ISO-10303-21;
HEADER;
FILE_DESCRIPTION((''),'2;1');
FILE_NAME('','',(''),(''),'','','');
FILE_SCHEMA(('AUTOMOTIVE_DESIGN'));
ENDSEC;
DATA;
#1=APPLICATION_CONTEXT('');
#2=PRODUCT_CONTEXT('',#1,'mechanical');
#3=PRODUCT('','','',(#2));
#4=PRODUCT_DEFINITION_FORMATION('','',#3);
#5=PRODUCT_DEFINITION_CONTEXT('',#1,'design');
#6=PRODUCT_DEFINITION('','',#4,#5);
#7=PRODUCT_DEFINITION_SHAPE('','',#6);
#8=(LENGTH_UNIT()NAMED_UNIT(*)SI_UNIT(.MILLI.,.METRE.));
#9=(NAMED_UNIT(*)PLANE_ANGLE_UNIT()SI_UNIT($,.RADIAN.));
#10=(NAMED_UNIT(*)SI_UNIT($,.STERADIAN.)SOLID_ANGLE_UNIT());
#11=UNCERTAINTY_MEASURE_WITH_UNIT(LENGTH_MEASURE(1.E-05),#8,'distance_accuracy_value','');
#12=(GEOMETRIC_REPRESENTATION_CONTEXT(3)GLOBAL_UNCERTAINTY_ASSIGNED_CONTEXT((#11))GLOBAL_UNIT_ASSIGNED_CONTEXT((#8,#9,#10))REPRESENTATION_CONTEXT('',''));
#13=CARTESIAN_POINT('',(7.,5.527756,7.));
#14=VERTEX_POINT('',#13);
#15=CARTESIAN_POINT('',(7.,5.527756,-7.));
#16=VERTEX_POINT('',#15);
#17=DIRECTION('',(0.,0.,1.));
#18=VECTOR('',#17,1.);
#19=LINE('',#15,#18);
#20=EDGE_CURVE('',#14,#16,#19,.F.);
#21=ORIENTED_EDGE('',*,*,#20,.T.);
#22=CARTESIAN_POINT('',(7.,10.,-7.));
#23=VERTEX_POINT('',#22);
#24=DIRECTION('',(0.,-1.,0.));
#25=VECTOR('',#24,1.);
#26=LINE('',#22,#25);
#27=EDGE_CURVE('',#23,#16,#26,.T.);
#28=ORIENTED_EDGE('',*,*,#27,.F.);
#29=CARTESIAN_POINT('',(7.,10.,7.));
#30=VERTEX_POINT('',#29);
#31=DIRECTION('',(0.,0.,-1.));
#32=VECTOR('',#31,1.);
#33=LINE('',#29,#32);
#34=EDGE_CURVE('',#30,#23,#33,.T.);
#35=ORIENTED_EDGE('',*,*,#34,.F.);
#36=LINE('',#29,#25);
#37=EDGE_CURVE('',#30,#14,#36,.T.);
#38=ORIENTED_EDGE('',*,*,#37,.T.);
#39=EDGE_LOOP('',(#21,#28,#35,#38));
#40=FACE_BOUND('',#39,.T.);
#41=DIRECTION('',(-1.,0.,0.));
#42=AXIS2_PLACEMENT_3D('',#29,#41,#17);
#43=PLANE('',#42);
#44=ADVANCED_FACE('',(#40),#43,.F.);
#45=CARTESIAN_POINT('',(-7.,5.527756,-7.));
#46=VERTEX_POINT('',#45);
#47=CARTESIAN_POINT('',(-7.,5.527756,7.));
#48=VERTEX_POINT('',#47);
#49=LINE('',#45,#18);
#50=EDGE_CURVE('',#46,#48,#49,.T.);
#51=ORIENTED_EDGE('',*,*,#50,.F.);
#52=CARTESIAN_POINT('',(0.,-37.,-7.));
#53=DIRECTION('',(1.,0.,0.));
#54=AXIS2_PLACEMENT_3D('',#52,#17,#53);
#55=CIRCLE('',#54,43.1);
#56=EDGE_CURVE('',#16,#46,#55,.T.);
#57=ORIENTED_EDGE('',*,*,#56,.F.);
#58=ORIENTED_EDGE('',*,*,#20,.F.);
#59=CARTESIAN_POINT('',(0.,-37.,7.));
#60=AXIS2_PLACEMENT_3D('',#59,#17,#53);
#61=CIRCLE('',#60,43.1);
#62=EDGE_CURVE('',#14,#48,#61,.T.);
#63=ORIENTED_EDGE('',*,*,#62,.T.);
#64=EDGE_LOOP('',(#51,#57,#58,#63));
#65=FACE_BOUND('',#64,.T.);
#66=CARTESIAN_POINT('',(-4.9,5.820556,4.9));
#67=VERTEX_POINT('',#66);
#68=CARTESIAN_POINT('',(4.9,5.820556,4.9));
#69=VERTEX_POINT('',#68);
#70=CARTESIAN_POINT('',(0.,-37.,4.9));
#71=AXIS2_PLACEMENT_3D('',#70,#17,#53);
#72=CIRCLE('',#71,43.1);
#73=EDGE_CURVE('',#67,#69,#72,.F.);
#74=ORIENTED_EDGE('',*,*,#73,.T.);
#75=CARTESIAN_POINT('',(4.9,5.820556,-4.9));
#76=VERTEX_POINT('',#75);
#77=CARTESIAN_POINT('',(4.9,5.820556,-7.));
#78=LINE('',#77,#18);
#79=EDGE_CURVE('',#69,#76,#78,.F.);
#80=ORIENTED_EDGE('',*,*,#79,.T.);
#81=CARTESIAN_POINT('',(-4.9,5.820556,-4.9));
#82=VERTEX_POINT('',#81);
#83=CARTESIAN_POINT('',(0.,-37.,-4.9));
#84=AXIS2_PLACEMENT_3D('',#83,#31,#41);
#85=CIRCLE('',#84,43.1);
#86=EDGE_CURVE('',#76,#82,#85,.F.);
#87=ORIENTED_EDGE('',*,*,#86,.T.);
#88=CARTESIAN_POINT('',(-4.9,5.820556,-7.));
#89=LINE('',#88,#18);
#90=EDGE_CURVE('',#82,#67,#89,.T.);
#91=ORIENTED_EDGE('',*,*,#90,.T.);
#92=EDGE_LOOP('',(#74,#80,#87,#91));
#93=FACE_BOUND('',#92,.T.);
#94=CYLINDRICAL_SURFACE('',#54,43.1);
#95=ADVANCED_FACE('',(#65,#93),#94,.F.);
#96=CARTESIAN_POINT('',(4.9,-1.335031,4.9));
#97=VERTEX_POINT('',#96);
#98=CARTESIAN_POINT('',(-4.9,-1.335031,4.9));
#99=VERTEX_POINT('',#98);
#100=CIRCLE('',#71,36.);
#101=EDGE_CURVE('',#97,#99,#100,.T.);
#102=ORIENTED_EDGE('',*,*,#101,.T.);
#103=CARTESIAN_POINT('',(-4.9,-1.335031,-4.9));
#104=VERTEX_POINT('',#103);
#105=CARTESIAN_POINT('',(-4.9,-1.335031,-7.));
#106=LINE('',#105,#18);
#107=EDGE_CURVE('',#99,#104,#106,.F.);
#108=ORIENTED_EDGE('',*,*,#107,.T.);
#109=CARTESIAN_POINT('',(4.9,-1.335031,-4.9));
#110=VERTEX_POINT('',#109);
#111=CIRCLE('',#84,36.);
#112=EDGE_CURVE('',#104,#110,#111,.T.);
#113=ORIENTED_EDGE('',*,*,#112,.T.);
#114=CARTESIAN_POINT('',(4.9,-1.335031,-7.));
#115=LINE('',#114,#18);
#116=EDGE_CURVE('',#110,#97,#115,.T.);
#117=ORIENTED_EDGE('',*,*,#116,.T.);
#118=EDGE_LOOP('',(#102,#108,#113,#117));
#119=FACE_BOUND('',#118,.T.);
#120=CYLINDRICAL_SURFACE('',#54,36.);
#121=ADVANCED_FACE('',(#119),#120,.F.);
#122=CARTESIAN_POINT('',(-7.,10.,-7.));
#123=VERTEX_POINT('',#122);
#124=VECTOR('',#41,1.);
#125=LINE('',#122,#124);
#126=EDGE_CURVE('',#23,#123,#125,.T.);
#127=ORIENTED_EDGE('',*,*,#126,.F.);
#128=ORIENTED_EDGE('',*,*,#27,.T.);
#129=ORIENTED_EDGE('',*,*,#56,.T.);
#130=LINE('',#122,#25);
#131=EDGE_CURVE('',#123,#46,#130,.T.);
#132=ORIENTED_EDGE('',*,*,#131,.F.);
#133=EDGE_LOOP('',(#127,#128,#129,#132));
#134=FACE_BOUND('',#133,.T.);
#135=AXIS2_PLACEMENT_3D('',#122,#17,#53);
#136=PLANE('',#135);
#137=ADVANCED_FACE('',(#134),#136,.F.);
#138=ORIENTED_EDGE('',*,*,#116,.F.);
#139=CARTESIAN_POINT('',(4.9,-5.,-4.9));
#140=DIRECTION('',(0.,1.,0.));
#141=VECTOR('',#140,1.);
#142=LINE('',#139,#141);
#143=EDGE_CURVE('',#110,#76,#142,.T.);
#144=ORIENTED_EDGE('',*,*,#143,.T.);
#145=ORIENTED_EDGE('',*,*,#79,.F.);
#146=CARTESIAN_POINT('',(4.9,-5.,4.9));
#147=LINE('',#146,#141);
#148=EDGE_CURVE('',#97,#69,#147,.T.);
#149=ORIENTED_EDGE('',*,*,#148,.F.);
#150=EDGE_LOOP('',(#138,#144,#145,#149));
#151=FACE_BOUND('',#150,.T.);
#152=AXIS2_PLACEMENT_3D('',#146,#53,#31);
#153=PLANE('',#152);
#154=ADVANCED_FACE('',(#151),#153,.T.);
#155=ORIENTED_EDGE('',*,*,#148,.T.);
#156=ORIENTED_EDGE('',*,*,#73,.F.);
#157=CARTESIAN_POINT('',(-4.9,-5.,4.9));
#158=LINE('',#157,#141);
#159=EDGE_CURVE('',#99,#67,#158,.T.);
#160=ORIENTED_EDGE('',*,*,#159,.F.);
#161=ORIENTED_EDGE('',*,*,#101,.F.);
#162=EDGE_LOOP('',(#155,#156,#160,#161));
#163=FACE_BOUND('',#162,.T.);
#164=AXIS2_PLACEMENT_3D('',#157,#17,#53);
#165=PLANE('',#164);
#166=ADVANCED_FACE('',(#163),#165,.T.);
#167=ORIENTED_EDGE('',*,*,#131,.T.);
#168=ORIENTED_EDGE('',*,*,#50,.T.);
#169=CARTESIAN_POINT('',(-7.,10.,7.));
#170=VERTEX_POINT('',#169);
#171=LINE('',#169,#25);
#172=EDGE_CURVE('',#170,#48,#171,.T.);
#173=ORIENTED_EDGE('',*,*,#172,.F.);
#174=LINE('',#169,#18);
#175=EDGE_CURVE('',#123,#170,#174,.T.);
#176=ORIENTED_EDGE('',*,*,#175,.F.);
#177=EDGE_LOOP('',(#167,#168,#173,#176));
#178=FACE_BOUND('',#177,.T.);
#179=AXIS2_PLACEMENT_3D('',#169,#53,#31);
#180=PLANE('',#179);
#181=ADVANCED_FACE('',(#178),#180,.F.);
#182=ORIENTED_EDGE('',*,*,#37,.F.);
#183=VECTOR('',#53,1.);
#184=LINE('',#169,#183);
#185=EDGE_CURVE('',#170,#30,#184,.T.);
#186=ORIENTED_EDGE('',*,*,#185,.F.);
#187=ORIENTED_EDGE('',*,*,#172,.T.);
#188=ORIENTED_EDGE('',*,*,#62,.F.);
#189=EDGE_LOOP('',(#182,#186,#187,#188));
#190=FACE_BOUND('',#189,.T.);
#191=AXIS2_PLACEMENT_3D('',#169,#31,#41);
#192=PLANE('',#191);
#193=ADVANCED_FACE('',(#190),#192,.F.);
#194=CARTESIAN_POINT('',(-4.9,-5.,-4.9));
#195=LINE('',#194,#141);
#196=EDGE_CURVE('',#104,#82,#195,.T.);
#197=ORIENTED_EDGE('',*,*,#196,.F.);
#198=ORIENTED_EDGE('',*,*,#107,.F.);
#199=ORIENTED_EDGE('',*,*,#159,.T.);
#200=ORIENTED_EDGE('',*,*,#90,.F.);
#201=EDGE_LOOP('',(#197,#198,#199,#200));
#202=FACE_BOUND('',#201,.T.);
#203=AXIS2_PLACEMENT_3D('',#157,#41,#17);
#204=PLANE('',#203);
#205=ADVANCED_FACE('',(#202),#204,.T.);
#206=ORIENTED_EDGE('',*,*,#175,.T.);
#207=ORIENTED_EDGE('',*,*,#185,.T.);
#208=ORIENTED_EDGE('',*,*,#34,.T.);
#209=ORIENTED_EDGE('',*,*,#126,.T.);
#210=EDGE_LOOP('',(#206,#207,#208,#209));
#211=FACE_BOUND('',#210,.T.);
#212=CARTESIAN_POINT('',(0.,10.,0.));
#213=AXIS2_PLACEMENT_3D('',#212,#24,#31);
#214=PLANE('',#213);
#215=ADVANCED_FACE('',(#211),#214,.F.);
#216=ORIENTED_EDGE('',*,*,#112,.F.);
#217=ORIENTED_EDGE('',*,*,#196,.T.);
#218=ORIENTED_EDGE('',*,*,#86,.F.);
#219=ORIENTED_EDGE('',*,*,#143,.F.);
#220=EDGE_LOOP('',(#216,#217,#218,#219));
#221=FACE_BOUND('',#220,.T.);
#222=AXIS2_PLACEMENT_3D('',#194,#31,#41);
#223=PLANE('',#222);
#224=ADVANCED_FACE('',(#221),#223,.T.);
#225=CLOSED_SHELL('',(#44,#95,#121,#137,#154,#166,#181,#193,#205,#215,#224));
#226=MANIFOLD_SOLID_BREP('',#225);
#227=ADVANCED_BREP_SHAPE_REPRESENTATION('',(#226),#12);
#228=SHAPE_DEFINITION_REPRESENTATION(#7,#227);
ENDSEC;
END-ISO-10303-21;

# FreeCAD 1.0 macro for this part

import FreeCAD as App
import Part
import Sketcher
from FreeCAD import Vector
Q = App.Units.Quantity

doc = App.newDocument("Part")
body = doc.addObject("PartDesign::Body", "Body")

# Sketch on XZ plane
sketch1 = body.newObject("Sketcher::SketchObject", "Sketch")
sketch1.AttachmentSupport = (doc.getObject("XZ_Plane"), [""])
sketch1.MapMode = "FlatFace"
sketch1.addGeometry(Part.LineSegment(Vector(-7, -7, 0), Vector(-7, 7, 0)), False)
sketch1.addGeometry(Part.LineSegment(Vector(-7, 7, 0), Vector(7, 7, 0)), False)
sketch1.addGeometry(Part.LineSegment(Vector(7, 7, 0), Vector(7, -7, 0)), False)
sketch1.addGeometry(Part.LineSegment(Vector(7, -7, 0), Vector(-7, -7, 0)), False)
sketch1.addConstraint(Sketcher.Constraint("Coincident", 0, 2, 1, 1))
sketch1.addConstraint(Sketcher.Constraint("Coincident", 1, 2, 2, 1))
sketch1.addConstraint(Sketcher.Constraint("Coincident", 2, 2, 3, 1))
sketch1.addConstraint(Sketcher.Constraint("Coincident", 3, 2, 0, 1))
sketch1.addConstraint(Sketcher.Constraint("Vertical", 0))
sketch1.addConstraint(Sketcher.Constraint("Horizontal", 1))
sketch1.addConstraint(Sketcher.Constraint("Vertical", 2))
sketch1.addConstraint(Sketcher.Constraint("Horizontal", 3))
sketch1.addConstraint(Sketcher.Constraint("Symmetric", 0, 2, 2, 2, -1, 1))
sketch1.addConstraint(Sketcher.Constraint("Equal", 3, 0))
sketch1.addConstraint(Sketcher.Constraint("DistanceX", 1, 1, 1, 2, Q("14 mm")))
pad1 = body.newObject("PartDesign::Pad", "Pad")
pad1.Profile = sketch1
pad1.Length = 10
pad1.Reversed = True

# Sketch on XY plane
sketch2 = body.newObject("Sketcher::SketchObject", "Sketch001")
sketch2.AttachmentSupport = (doc.getObject("XY_Plane"), [""])
sketch2.MapMode = "FlatFace"
sketch2.addGeometry(Part.Circle(Vector(0, -37, 0), Vector(0, 0, 1), 43), False)
sketch2.addConstraint(Sketcher.Constraint("PointOnObject", 0, 3, -2))
sketch2.addConstraint(Sketcher.Constraint("Diameter", 0, Q("86.2 mm")))
sketch2.addConstraint(Sketcher.Constraint("DistanceY", 0, 3, -1, 1, Q("37 mm")))
pocket1 = body.newObject("PartDesign::Pocket", "Pocket")
pocket1.Profile = sketch2
pocket1.Type = "ThroughAll"
pocket1.Midplane = True

# Sketch on XZ plane
sketch3 = body.newObject("Sketcher::SketchObject", "Sketch002")
sketch3.AttachmentSupport = (doc.getObject("XZ_Plane"), [""])
sketch3.MapMode = "FlatFace"
sketch3.AttachmentOffset = App.Placement(Vector(0, 0, -10), App.Rotation())
sketch3.addGeometry(Part.LineSegment(Vector(-5, -5, 0), Vector(-5, 5, 0)), False)
sketch3.addGeometry(Part.LineSegment(Vector(-5, 5, 0), Vector(5, 5, 0)), False)
sketch3.addGeometry(Part.LineSegment(Vector(5, 5, 0), Vector(5, -5, 0)), False)
sketch3.addGeometry(Part.LineSegment(Vector(5, -5, 0), Vector(-5, -5, 0)), False)
sketch3.addConstraint(Sketcher.Constraint("Coincident", 0, 2, 1, 1))
sketch3.addConstraint(Sketcher.Constraint("Coincident", 1, 2, 2, 1))
sketch3.addConstraint(Sketcher.Constraint("Coincident", 2, 2, 3, 1))
sketch3.addConstraint(Sketcher.Constraint("Coincident", 3, 2, 0, 1))
sketch3.addConstraint(Sketcher.Constraint("Vertical", 0))
sketch3.addConstraint(Sketcher.Constraint("Horizontal", 1))
sketch3.addConstraint(Sketcher.Constraint("Vertical", 2))
sketch3.addConstraint(Sketcher.Constraint("Horizontal", 3))
sketch3.addConstraint(Sketcher.Constraint("Symmetric", 0, 2, 2, 2, -1, 1))
sketch3.addConstraint(Sketcher.Constraint("Equal", 3, 0))
sketch3.addConstraint(Sketcher.Constraint("DistanceX", 1, 1, 1, 2, Q("9.8 mm")))
pad2 = body.newObject("PartDesign::Pad", "Pad001")
pad2.Profile = sketch3
pad2.Length = 15

# Sketch on XY plane
sketch4 = body.newObject("Sketcher::SketchObject", "Sketch003")
sketch4.AttachmentSupport = (doc.getObject("XY_Plane"), [""])
sketch4.MapMode = "FlatFace"
sketch4.addGeometry(Part.Circle(Vector(0, -37, 0), Vector(0, 0, 1), 36), False)
sketch4.addConstraint(Sketcher.Constraint("PointOnObject", 0, 3, -2))
sketch4.addConstraint(Sketcher.Constraint("Diameter", 0, Q("72 mm")))
sketch4.addConstraint(Sketcher.Constraint("DistanceY", 0, 3, -1, 1, Q("37 mm")))
pocket2 = body.newObject("PartDesign::Pocket", "Pocket001")
pocket2.Profile = sketch4
pocket2.Type = "ThroughAll"
pocket2.Midplane = True

doc.recompute()
